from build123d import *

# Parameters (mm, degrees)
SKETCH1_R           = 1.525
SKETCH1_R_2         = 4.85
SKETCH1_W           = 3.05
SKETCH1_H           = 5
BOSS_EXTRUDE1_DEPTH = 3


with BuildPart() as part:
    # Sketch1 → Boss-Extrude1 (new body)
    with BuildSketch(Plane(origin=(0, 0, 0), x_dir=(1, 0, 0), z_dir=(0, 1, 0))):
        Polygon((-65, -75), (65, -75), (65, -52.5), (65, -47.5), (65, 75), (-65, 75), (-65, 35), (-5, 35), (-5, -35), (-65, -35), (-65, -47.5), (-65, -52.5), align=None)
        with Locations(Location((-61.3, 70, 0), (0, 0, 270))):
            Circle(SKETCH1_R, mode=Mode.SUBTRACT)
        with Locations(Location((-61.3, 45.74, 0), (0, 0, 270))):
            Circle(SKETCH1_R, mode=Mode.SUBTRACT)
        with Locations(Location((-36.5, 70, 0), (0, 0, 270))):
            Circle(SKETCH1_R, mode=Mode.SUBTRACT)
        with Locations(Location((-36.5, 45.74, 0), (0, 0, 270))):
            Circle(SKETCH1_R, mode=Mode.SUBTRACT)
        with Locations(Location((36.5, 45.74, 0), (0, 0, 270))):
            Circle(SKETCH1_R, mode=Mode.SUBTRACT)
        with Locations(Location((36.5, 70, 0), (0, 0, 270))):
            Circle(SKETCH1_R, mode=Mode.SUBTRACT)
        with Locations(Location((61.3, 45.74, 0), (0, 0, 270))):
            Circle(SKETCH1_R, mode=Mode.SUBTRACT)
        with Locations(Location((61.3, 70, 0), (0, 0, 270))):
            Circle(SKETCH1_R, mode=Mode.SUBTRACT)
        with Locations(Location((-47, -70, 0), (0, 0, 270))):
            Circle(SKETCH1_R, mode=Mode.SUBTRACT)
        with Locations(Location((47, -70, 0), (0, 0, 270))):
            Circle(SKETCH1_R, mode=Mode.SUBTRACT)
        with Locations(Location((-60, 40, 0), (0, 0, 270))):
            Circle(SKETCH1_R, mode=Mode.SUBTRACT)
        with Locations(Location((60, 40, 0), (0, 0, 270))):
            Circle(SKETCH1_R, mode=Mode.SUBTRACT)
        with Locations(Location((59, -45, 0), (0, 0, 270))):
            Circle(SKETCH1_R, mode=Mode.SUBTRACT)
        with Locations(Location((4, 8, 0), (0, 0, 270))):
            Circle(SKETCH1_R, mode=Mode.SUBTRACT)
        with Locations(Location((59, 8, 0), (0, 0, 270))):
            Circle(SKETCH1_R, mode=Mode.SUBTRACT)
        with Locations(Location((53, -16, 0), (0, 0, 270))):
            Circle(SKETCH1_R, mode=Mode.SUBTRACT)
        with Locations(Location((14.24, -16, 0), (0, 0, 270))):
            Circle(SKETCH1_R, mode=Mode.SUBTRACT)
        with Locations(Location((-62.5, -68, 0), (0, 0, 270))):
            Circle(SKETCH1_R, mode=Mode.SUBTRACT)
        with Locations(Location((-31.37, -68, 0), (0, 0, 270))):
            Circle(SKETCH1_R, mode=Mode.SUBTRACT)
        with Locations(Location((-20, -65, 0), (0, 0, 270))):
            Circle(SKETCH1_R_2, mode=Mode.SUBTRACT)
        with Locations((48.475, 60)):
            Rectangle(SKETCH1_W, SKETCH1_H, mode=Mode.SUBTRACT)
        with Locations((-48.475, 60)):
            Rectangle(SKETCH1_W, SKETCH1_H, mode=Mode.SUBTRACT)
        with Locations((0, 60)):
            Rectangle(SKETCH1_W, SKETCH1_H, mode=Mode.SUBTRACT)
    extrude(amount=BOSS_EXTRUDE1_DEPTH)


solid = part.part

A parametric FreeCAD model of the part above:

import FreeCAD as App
import Part
import Sketcher
from FreeCAD import Vector


def add_polygon(sketch, points):
    """Adds a closed chain of lines whose ends are joined by coincident constraints."""
    first, n = sketch.GeometryCount, len(points)
    for a, b in zip(points, points[1:] + points[:1]):
        sketch.addGeometry(Part.LineSegment(App.Vector(*a, 0), App.Vector(*b, 0)), False)
    for i in range(n):
        sketch.addConstraint(Sketcher.Constraint("Coincident", first + i, 2, first + (i + 1) % n, 1))

doc = App.newDocument("Part")
params = doc.addObject("Spreadsheet::Sheet", "Params")
for row, (alias, value) in enumerate([
    ("sketch1_diameter", "9.7 mm"),
    ("sketch1_diameter2", "3.05 mm"),
    ("sketch1_width", "130 mm"),
    ("sketch1_width2", "60 mm"),
    ("sketch1_height", "150 mm"),
    ("pad1_length", "3 mm"),
], start=1):
    params.set(f"A{row}", alias)
    params.set(f"B{row}", "=" + value)
    params.setAlias(f"B{row}", alias)

body = doc.addObject("PartDesign::Body", "Body")

# Sketch on XZ plane
sketch1 = body.newObject("Sketcher::SketchObject", "Sketch")
sketch1.AttachmentSupport = (doc.getObject("XZ_Plane"), [""])
sketch1.MapMode = "FlatFace"
add_polygon(sketch1, [(-65, 75), (65, 75), (65, -75), (-65, -75), (-65, -35), (-5, -35), (-5, 35), (-65, 35)])  # lines 0-7
sketch1.addGeometry(Part.Circle(Vector(-62.5, 68, 0), Vector(0, 0, 1), 1.5), False)  # 8
sketch1.addGeometry(Part.Circle(Vector(-47, 70, 0), Vector(0, 0, 1), 1.5), False)  # 9
sketch1.addGeometry(Part.Circle(Vector(-31.4, 68, 0), Vector(0, 0, 1), 1.5), False)  # 10
sketch1.addGeometry(Part.Circle(Vector(-20, 65, 0), Vector(0, 0, 1), 4.8), False)  # 11
sketch1.addGeometry(Part.Circle(Vector(47, 70, 0), Vector(0, 0, 1), 1.5), False)  # 12
sketch1.addGeometry(Part.Circle(Vector(59, 45, 0), Vector(0, 0, 1), 1.5), False)  # 13
sketch1.addGeometry(Part.Circle(Vector(14.2, 16, 0), Vector(0, 0, 1), 1.5), False)  # 14
sketch1.addGeometry(Part.Circle(Vector(53, 16, 0), Vector(0, 0, 1), 1.5), False)  # 15
sketch1.addGeometry(Part.Circle(Vector(-60, -40, 0), Vector(0, 0, 1), 1.5), False)  # 16
sketch1.addGeometry(Part.Circle(Vector(-61.3, -45.7, 0), Vector(0, 0, 1), 1.5), False)  # 17
sketch1.addGeometry(Part.Circle(Vector(-36.5, -45.7, 0), Vector(0, 0, 1), 1.5), False)  # 18
add_polygon(sketch1, [(-47, -57.5), (-50, -57.5), (-50, -62.5), (-47, -62.5)])  # lines 19-22
sketch1.addGeometry(Part.Circle(Vector(-61.3, -70, 0), Vector(0, 0, 1), 1.5), False)  # 23
sketch1.addGeometry(Part.Circle(Vector(-36.5, -70, 0), Vector(0, 0, 1), 1.5), False)  # 24
sketch1.addGeometry(Part.Circle(Vector(4, -8, 0), Vector(0, 0, 1), 1.5), False)  # 25
sketch1.addGeometry(Part.Circle(Vector(59, -8, 0), Vector(0, 0, 1), 1.5), False)  # 26
add_polygon(sketch1, [(1.5, -57.5), (-1.5, -57.5), (-1.5, -62.5), (1.5, -62.5)])  # lines 27-30
sketch1.addGeometry(Part.Circle(Vector(36.5, -45.7, 0), Vector(0, 0, 1), 1.5), False)  # 31
sketch1.addGeometry(Part.Circle(Vector(60, -40, 0), Vector(0, 0, 1), 1.5), False)  # 32
sketch1.addGeometry(Part.Circle(Vector(61.3, -45.7, 0), Vector(0, 0, 1), 1.5), False)  # 33
sketch1.addGeometry(Part.Circle(Vector(36.5, -70, 0), Vector(0, 0, 1), 1.5), False)  # 34
add_polygon(sketch1, [(50, -57.5), (47, -57.5), (47, -62.5), (50, -62.5)])  # lines 35-38
sketch1.addGeometry(Part.Circle(Vector(61.3, -70, 0), Vector(0, 0, 1), 1.5), False)  # 39
sketch1.addConstraint([
    Sketcher.Constraint("Horizontal", 0),
    Sketcher.Constraint("Vertical", 1),
    Sketcher.Constraint("Horizontal", 2),
    Sketcher.Constraint("Vertical", 3),
    Sketcher.Constraint("Horizontal", 4),
    Sketcher.Constraint("Vertical", 5),
    Sketcher.Constraint("Horizontal", 6),
    Sketcher.Constraint("Vertical", 7),
    Sketcher.Constraint("Horizontal", 19),
    Sketcher.Constraint("Vertical", 20),
    Sketcher.Constraint("Horizontal", 21),
    Sketcher.Constraint("Vertical", 22),
    Sketcher.Constraint("Horizontal", 27),
    Sketcher.Constraint("Vertical", 28),
    Sketcher.Constraint("Horizontal", 29),
    Sketcher.Constraint("Vertical", 30),
    Sketcher.Constraint("Horizontal", 35),
    Sketcher.Constraint("Vertical", 36),
    Sketcher.Constraint("Horizontal", 37),
    Sketcher.Constraint("Vertical", 38),
    Sketcher.Constraint("Equal", 8, 9),
    Sketcher.Constraint("Equal", 9, 10),
    Sketcher.Constraint("Equal", 10, 12),
    Sketcher.Constraint("Equal", 12, 13),
    Sketcher.Constraint("Equal", 13, 14),
    Sketcher.Constraint("Equal", 14, 15),
    Sketcher.Constraint("Equal", 15, 16),
    Sketcher.Constraint("Equal", 16, 17),
    Sketcher.Constraint("Equal", 17, 18),
    Sketcher.Constraint("Equal", 18, 23),
    Sketcher.Constraint("Equal", 23, 24),
    Sketcher.Constraint("Equal", 24, 25),
    Sketcher.Constraint("Equal", 25, 26),
    Sketcher.Constraint("Equal", 26, 31),
    Sketcher.Constraint("Equal", 31, 32),
    Sketcher.Constraint("Equal", 32, 33),
    Sketcher.Constraint("Equal", 33, 34),
    Sketcher.Constraint("Equal", 34, 39),
    Sketcher.Constraint("Symmetric", 0, 2, 2, 2, -1, 1),
    Sketcher.Constraint("Symmetric", 9, 3, 12, 3, -2),
    Sketcher.Constraint("Symmetric", 18, 3, 31, 3, -2),
    Sketcher.Constraint("Symmetric", 16, 3, 32, 3, -2),
    Sketcher.Constraint("Symmetric", 17, 3, 33, 3, -2),
    Sketcher.Constraint("Symmetric", 24, 3, 34, 3, -2),
    Sketcher.Constraint("Symmetric", 23, 3, 39, 3, -2),
    Sketcher.Constraint("Symmetric", 22, 2, 35, 2, -2),
    Sketcher.Constraint("Symmetric", 20, 2, 37, 2, -2),
    Sketcher.Constraint("Symmetric", 3, 2, 6, 2, -1),
    Sketcher.Constraint("Horizontal", 8, 3, 10, 3),
    Sketcher.Constraint("Horizontal", 14, 3, 15, 3),
    Sketcher.Constraint("Horizontal", 17, 3, 18, 3),
    Sketcher.Constraint("Horizontal", 23, 3, 24, 3),
    Sketcher.Constraint("Horizontal", 25, 3, 26, 3),
    Sketcher.Constraint("Horizontal", 22, 2, 27, 2),
    Sketcher.Constraint("Horizontal", 21, 2, 28, 2),
    Sketcher.Constraint("Vertical", 17, 3, 23, 3),
    Sketcher.Constraint("Vertical", 18, 3, 24, 3),
    Sketcher.Constraint("Vertical", 13, 3, 26, 3),
    Sketcher.Constraint("Equal", 21, 27),
    Sketcher.Constraint("Diameter", 11, 9.7),
    Sketcher.Constraint("Diameter", 8, 3.05),
    Sketcher.Constraint("DistanceX", 0, 1, 0, 2, 130.0),
    Sketcher.Constraint("DistanceX", 4, 1, 4, 2, 60.0),
    Sketcher.Constraint("DistanceY", 1, 2, 1, 1, 150.0),
    Sketcher.Constraint("DistanceY", 3, 1, 3, 2, 40.0),
    Sketcher.Constraint("DistanceY", 20, 2, 20, 1, 5.0),
    Sketcher.Constraint("DistanceY", -1, 1, 8, 3, 68.0),
    Sketcher.Constraint("DistanceX", 9, 3, -1, 1, 47.0),
    Sketcher.Constraint("DistanceY", -1, 1, 9, 3, 70.0),
    Sketcher.Constraint("DistanceX", 11, 3, -1, 1, 20.0),
    Sketcher.Constraint("DistanceY", -1, 1, 11, 3, 65.0),
    Sketcher.Constraint("DistanceX", -1, 1, 13, 3, 59.0),
    Sketcher.Constraint("DistanceY", -1, 1, 13, 3, 45.0),
    Sketcher.Constraint("DistanceY", -1, 1, 14, 3, 16.0),
    Sketcher.Constraint("DistanceX", -1, 1, 15, 3, 53.0),
    Sketcher.Constraint("DistanceX", 16, 3, -1, 1, 60.0),
    Sketcher.Constraint("DistanceY", 16, 3, -1, 1, 40.0),
    Sketcher.Constraint("DistanceY", 23, 3, -1, 1, 70.0),
    Sketcher.Constraint("DistanceX", -1, 1, 25, 3, 4.0),
    Sketcher.Constraint("DistanceY", 25, 3, -1, 1, 8.0),
    Sketcher.Constraint("DistanceX", 19, 2, -1, 1, 50.0),
    Sketcher.Constraint("DistanceX", 18, 3, 31, 3, 73.0),
    Sketcher.Constraint("DistanceX", 19, 2, 19, 1, 3.05),
    Sketcher.Constraint("DistanceX", 8, 3, -1, 1, 62.5),
    Sketcher.Constraint("DistanceX", 17, 3, -1, 1, 61.3),
    Sketcher.Constraint("DistanceY", 19, 2, -1, 1, 57.5),
    Sketcher.Constraint("DistanceX", 10, 3, -1, 1, 31.37),
    Sketcher.Constraint("DistanceX", -1, 1, 14, 3, 14.24),
    Sketcher.Constraint("DistanceY", 17, 3, -1, 1, 45.74),
    Sketcher.Constraint("DistanceX", 27, 2, -1, 1, 1.525),
])
sketch1.setExpression("Constraints[79]", "Params.sketch1_diameter")
sketch1.setExpression("Constraints[80]", "Params.sketch1_diameter2")
sketch1.setExpression("Constraints[81]", "Params.sketch1_width")
sketch1.setExpression("Constraints[82]", "Params.sketch1_width2")
sketch1.setExpression("Constraints[83]", "Params.sketch1_height")
pad1 = body.newObject("PartDesign::Pad", "Pad")
pad1.Profile = sketch1
pad1.setExpression("Length", "Params.pad1_length")
pad1.Reversed = True

doc.recompute()
